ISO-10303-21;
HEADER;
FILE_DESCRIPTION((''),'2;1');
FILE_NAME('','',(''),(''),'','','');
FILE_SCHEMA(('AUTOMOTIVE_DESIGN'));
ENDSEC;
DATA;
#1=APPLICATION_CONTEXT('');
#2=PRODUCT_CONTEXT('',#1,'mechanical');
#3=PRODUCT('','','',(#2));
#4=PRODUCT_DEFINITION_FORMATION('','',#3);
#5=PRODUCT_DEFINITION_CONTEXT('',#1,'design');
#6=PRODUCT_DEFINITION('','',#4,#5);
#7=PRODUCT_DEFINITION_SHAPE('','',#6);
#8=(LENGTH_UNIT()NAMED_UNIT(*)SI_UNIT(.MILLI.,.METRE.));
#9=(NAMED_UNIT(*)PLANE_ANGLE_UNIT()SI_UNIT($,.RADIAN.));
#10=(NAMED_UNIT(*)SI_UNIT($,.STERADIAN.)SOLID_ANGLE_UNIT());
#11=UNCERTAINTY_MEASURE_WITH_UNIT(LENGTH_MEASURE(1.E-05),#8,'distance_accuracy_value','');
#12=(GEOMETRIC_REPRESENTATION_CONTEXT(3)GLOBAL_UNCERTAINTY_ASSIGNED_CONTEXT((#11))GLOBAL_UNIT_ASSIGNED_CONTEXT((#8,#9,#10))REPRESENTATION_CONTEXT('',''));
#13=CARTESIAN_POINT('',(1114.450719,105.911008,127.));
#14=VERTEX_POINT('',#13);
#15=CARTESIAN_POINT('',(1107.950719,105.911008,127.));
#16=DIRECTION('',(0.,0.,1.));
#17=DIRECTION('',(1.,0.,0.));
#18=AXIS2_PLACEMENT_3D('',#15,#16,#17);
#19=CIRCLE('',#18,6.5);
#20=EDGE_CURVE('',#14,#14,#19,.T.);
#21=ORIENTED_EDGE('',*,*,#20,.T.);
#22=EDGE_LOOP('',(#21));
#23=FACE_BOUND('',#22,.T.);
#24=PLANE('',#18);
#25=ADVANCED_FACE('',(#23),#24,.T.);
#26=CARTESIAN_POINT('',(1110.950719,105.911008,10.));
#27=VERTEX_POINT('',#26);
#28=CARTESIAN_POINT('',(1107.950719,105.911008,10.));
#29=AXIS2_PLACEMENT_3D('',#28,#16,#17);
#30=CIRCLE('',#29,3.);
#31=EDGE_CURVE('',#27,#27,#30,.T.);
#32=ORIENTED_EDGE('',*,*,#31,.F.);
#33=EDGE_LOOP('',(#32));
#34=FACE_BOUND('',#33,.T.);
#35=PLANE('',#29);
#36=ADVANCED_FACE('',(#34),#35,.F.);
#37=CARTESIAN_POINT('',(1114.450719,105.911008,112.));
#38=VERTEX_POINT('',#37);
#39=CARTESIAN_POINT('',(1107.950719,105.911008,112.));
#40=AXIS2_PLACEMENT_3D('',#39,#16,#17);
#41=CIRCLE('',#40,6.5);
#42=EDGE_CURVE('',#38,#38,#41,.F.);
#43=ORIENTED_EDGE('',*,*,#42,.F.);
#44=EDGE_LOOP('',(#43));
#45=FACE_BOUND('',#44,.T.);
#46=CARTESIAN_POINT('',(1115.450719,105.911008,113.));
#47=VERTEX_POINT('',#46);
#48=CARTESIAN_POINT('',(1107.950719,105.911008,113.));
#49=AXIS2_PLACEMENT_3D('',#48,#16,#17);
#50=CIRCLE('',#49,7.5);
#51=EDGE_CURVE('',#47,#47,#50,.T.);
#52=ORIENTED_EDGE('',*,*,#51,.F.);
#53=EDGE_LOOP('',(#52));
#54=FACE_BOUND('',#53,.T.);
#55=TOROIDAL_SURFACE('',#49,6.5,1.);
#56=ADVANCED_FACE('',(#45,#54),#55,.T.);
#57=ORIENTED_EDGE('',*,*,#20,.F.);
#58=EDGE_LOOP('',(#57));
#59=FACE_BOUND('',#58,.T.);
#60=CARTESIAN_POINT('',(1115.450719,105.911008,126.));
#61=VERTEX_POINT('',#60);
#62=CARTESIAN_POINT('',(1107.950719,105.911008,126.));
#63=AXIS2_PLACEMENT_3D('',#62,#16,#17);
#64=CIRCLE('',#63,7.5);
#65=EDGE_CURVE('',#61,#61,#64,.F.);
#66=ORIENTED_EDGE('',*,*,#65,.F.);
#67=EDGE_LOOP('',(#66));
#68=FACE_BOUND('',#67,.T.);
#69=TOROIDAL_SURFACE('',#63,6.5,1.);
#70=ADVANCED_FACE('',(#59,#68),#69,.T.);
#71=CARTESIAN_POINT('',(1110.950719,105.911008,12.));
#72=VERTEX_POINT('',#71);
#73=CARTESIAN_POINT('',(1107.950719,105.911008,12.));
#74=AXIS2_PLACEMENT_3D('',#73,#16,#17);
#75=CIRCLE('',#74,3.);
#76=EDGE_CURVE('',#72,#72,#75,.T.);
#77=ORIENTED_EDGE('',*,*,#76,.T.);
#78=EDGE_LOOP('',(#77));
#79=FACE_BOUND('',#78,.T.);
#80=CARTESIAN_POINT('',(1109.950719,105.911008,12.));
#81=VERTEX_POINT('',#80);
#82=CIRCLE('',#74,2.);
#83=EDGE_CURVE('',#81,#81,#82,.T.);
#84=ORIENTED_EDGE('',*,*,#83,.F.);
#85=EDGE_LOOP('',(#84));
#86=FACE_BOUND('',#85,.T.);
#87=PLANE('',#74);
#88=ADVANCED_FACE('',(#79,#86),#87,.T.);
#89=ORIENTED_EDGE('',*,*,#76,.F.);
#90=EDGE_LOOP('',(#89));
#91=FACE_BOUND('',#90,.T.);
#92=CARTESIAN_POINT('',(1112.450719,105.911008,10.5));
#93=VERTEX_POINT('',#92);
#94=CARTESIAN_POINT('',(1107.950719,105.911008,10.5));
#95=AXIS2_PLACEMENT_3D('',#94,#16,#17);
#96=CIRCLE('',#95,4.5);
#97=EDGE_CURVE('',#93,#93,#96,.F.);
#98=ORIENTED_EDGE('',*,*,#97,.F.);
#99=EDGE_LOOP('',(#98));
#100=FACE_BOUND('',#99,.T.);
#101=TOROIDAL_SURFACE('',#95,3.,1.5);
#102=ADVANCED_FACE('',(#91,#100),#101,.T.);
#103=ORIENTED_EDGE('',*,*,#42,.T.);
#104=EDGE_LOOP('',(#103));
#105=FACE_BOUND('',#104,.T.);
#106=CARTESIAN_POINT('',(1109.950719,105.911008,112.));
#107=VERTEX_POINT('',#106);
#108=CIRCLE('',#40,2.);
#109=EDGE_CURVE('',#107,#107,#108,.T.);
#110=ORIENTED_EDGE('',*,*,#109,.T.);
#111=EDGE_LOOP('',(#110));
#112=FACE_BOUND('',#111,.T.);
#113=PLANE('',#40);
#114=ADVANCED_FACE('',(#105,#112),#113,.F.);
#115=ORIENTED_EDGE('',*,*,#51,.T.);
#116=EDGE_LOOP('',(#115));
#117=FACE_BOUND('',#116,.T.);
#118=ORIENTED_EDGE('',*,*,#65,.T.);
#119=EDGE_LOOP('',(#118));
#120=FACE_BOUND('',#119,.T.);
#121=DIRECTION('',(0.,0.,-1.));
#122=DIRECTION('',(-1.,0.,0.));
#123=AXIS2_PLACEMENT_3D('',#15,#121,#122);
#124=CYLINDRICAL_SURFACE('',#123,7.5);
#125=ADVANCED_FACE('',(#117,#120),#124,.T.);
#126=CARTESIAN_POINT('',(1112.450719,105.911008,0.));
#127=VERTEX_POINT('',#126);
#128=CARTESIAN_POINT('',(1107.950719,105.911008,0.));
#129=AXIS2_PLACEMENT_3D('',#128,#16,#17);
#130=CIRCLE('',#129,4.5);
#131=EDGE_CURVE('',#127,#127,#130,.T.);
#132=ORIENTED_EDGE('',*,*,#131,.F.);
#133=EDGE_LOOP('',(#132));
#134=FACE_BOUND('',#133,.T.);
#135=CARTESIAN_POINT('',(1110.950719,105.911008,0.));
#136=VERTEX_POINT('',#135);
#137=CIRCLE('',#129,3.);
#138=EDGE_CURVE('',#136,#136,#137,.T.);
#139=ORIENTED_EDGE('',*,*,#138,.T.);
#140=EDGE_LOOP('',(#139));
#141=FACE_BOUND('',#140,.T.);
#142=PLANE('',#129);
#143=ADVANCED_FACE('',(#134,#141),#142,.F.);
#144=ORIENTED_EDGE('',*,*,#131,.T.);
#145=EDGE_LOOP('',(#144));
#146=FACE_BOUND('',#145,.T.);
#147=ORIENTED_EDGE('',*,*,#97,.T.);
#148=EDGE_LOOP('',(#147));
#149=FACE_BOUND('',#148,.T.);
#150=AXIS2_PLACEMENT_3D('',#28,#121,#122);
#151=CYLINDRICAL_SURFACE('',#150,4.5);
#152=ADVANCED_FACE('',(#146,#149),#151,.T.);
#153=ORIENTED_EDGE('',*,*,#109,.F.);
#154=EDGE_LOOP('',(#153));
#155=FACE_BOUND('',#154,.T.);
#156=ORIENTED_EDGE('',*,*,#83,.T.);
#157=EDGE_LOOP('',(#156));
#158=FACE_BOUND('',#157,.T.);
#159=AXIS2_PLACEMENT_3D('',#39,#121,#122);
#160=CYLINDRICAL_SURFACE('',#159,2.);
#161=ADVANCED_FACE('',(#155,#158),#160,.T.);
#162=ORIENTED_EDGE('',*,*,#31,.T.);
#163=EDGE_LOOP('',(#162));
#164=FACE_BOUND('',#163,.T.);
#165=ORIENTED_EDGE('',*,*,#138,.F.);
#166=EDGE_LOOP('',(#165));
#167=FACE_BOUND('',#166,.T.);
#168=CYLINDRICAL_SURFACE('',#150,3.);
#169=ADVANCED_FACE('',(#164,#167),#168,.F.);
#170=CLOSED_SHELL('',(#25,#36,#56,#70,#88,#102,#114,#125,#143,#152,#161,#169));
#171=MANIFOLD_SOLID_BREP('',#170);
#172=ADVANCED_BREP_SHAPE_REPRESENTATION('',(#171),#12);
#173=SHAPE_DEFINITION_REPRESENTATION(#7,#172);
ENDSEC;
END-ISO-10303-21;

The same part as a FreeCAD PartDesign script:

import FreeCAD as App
import Part
import Sketcher
from FreeCAD import Vector
Q = App.Units.Quantity


def edges_at(feature, points):
    """Names of the edges that pass closest to the given points."""
    edges = feature.Shape.Edges
    near = lambda p: min(range(len(edges)), key=lambda i: edges[i].distToShape(Part.Vertex(*p))[0])
    return sorted({f"Edge{near(p) + 1}" for p in points})

doc = App.newDocument("Part")
body = doc.addObject("PartDesign::Body", "Body")

sketch1 = doc.addObject("Sketcher::SketchObject", "Sketch")
body.addObject(sketch1)
sketch1.AttachmentSupport = (doc.XY_Plane, [""])
sketch1.MapMode = "FlatFace"
sketch1.addGeometry([
    Part.Circle(Vector(1108, 105.9, 0), Vector(0, 0, 1), 4.5),
    Part.Circle(Vector(1108, 105.9, 0), Vector(0, 0, 1), 3),
], False)
sketch1.addConstraint([
    Sketcher.Constraint("Coincident", 1, 3, 0, 3),
    Sketcher.Constraint("Diameter", 0, Q("9 mm")),
    Sketcher.Constraint("Diameter", 1, Q("6 mm")),
    Sketcher.Constraint("DistanceX", -1, 1, 0, 3, Q("1107.950719 mm")),
    Sketcher.Constraint("DistanceY", -1, 1, 0, 3, Q("105.911008 mm")),
])
pad1 = doc.addObject("PartDesign::Pad", "Pad")
body.addObject(pad1)
pad1.Profile = sketch1
pad1.Length = 10

sketch2 = doc.addObject("Sketcher::SketchObject", "Sketch001")
body.addObject(sketch2)
sketch2.AttachmentSupport = (doc.XY_Plane, [""])
sketch2.MapMode = "FlatFace"
sketch2.AttachmentOffset = App.Placement(Vector(0, 0, 10), App.Rotation())
sketch2.addGeometry(Part.Circle(Vector(1108, 105.9, 0), Vector(0, 0, 1), 4.5), False)
sketch2.addConstraint([
    Sketcher.Constraint("Diameter", 0, Q("9 mm")),
    Sketcher.Constraint("DistanceX", -1, 1, 0, 3, Q("1107.950719 mm")),
    Sketcher.Constraint("DistanceY", -1, 1, 0, 3, Q("105.911008 mm")),
])
pad2 = doc.addObject("PartDesign::Pad", "Pad001")
body.addObject(pad2)
pad2.Profile = sketch2
pad2.Length = 2

sketch3 = doc.addObject("Sketcher::SketchObject", "Sketch002")
body.addObject(sketch3)
sketch3.AttachmentSupport = (doc.XY_Plane, [""])
sketch3.MapMode = "FlatFace"
sketch3.AttachmentOffset = App.Placement(Vector(0, 0, 12), App.Rotation())
sketch3.addGeometry(Part.Circle(Vector(1108, 105.9, 0), Vector(0, 0, 1), 2), False)
sketch3.addConstraint([
    Sketcher.Constraint("Diameter", 0, Q("4 mm")),
    Sketcher.Constraint("DistanceX", -1, 1, 0, 3, Q("1107.950719 mm")),
    Sketcher.Constraint("DistanceY", -1, 1, 0, 3, Q("105.911008 mm")),
])
pad3 = doc.addObject("PartDesign::Pad", "Pad002")
body.addObject(pad3)
pad3.Profile = sketch3
pad3.Length = 100

sketch4 = doc.addObject("Sketcher::SketchObject", "Sketch003")
body.addObject(sketch4)
sketch4.AttachmentSupport = (doc.XY_Plane, [""])
sketch4.MapMode = "FlatFace"
sketch4.AttachmentOffset = App.Placement(Vector(0, 0, 112), App.Rotation())
sketch4.addGeometry(Part.Circle(Vector(1108, 106, 0), Vector(0, 0, 1), 8), False)
sketch4.addConstraint([
    Sketcher.Constraint("Diameter", 0, Q("15 mm")),
    Sketcher.Constraint("DistanceX", -1, 1, 0, 3, Q("1107.950719 mm")),
    Sketcher.Constraint("DistanceY", -1, 1, 0, 3, Q("105.911008 mm")),
])
pad4 = doc.addObject("PartDesign::Pad", "Pad003")
body.addObject(pad4)
pad4.Profile = sketch4
pad4.Length = 15
doc.recompute()

fillet = doc.addObject("PartDesign::Fillet", "Fillet")
body.addObject(fillet)
fillet.Base = (pad4, edges_at(pad4, [(1100.451, 105.911, 112), (1100.451, 105.911, 127)]))
fillet.Radius = 1
doc.recompute()

fillet2 = doc.addObject("PartDesign::Fillet", "Fillet001")
body.addObject(fillet2)
fillet2.Base = (fillet, edges_at(fillet, [(1103.451, 105.911, 12)]))
fillet2.Radius = 1.5

doc.recompute()
